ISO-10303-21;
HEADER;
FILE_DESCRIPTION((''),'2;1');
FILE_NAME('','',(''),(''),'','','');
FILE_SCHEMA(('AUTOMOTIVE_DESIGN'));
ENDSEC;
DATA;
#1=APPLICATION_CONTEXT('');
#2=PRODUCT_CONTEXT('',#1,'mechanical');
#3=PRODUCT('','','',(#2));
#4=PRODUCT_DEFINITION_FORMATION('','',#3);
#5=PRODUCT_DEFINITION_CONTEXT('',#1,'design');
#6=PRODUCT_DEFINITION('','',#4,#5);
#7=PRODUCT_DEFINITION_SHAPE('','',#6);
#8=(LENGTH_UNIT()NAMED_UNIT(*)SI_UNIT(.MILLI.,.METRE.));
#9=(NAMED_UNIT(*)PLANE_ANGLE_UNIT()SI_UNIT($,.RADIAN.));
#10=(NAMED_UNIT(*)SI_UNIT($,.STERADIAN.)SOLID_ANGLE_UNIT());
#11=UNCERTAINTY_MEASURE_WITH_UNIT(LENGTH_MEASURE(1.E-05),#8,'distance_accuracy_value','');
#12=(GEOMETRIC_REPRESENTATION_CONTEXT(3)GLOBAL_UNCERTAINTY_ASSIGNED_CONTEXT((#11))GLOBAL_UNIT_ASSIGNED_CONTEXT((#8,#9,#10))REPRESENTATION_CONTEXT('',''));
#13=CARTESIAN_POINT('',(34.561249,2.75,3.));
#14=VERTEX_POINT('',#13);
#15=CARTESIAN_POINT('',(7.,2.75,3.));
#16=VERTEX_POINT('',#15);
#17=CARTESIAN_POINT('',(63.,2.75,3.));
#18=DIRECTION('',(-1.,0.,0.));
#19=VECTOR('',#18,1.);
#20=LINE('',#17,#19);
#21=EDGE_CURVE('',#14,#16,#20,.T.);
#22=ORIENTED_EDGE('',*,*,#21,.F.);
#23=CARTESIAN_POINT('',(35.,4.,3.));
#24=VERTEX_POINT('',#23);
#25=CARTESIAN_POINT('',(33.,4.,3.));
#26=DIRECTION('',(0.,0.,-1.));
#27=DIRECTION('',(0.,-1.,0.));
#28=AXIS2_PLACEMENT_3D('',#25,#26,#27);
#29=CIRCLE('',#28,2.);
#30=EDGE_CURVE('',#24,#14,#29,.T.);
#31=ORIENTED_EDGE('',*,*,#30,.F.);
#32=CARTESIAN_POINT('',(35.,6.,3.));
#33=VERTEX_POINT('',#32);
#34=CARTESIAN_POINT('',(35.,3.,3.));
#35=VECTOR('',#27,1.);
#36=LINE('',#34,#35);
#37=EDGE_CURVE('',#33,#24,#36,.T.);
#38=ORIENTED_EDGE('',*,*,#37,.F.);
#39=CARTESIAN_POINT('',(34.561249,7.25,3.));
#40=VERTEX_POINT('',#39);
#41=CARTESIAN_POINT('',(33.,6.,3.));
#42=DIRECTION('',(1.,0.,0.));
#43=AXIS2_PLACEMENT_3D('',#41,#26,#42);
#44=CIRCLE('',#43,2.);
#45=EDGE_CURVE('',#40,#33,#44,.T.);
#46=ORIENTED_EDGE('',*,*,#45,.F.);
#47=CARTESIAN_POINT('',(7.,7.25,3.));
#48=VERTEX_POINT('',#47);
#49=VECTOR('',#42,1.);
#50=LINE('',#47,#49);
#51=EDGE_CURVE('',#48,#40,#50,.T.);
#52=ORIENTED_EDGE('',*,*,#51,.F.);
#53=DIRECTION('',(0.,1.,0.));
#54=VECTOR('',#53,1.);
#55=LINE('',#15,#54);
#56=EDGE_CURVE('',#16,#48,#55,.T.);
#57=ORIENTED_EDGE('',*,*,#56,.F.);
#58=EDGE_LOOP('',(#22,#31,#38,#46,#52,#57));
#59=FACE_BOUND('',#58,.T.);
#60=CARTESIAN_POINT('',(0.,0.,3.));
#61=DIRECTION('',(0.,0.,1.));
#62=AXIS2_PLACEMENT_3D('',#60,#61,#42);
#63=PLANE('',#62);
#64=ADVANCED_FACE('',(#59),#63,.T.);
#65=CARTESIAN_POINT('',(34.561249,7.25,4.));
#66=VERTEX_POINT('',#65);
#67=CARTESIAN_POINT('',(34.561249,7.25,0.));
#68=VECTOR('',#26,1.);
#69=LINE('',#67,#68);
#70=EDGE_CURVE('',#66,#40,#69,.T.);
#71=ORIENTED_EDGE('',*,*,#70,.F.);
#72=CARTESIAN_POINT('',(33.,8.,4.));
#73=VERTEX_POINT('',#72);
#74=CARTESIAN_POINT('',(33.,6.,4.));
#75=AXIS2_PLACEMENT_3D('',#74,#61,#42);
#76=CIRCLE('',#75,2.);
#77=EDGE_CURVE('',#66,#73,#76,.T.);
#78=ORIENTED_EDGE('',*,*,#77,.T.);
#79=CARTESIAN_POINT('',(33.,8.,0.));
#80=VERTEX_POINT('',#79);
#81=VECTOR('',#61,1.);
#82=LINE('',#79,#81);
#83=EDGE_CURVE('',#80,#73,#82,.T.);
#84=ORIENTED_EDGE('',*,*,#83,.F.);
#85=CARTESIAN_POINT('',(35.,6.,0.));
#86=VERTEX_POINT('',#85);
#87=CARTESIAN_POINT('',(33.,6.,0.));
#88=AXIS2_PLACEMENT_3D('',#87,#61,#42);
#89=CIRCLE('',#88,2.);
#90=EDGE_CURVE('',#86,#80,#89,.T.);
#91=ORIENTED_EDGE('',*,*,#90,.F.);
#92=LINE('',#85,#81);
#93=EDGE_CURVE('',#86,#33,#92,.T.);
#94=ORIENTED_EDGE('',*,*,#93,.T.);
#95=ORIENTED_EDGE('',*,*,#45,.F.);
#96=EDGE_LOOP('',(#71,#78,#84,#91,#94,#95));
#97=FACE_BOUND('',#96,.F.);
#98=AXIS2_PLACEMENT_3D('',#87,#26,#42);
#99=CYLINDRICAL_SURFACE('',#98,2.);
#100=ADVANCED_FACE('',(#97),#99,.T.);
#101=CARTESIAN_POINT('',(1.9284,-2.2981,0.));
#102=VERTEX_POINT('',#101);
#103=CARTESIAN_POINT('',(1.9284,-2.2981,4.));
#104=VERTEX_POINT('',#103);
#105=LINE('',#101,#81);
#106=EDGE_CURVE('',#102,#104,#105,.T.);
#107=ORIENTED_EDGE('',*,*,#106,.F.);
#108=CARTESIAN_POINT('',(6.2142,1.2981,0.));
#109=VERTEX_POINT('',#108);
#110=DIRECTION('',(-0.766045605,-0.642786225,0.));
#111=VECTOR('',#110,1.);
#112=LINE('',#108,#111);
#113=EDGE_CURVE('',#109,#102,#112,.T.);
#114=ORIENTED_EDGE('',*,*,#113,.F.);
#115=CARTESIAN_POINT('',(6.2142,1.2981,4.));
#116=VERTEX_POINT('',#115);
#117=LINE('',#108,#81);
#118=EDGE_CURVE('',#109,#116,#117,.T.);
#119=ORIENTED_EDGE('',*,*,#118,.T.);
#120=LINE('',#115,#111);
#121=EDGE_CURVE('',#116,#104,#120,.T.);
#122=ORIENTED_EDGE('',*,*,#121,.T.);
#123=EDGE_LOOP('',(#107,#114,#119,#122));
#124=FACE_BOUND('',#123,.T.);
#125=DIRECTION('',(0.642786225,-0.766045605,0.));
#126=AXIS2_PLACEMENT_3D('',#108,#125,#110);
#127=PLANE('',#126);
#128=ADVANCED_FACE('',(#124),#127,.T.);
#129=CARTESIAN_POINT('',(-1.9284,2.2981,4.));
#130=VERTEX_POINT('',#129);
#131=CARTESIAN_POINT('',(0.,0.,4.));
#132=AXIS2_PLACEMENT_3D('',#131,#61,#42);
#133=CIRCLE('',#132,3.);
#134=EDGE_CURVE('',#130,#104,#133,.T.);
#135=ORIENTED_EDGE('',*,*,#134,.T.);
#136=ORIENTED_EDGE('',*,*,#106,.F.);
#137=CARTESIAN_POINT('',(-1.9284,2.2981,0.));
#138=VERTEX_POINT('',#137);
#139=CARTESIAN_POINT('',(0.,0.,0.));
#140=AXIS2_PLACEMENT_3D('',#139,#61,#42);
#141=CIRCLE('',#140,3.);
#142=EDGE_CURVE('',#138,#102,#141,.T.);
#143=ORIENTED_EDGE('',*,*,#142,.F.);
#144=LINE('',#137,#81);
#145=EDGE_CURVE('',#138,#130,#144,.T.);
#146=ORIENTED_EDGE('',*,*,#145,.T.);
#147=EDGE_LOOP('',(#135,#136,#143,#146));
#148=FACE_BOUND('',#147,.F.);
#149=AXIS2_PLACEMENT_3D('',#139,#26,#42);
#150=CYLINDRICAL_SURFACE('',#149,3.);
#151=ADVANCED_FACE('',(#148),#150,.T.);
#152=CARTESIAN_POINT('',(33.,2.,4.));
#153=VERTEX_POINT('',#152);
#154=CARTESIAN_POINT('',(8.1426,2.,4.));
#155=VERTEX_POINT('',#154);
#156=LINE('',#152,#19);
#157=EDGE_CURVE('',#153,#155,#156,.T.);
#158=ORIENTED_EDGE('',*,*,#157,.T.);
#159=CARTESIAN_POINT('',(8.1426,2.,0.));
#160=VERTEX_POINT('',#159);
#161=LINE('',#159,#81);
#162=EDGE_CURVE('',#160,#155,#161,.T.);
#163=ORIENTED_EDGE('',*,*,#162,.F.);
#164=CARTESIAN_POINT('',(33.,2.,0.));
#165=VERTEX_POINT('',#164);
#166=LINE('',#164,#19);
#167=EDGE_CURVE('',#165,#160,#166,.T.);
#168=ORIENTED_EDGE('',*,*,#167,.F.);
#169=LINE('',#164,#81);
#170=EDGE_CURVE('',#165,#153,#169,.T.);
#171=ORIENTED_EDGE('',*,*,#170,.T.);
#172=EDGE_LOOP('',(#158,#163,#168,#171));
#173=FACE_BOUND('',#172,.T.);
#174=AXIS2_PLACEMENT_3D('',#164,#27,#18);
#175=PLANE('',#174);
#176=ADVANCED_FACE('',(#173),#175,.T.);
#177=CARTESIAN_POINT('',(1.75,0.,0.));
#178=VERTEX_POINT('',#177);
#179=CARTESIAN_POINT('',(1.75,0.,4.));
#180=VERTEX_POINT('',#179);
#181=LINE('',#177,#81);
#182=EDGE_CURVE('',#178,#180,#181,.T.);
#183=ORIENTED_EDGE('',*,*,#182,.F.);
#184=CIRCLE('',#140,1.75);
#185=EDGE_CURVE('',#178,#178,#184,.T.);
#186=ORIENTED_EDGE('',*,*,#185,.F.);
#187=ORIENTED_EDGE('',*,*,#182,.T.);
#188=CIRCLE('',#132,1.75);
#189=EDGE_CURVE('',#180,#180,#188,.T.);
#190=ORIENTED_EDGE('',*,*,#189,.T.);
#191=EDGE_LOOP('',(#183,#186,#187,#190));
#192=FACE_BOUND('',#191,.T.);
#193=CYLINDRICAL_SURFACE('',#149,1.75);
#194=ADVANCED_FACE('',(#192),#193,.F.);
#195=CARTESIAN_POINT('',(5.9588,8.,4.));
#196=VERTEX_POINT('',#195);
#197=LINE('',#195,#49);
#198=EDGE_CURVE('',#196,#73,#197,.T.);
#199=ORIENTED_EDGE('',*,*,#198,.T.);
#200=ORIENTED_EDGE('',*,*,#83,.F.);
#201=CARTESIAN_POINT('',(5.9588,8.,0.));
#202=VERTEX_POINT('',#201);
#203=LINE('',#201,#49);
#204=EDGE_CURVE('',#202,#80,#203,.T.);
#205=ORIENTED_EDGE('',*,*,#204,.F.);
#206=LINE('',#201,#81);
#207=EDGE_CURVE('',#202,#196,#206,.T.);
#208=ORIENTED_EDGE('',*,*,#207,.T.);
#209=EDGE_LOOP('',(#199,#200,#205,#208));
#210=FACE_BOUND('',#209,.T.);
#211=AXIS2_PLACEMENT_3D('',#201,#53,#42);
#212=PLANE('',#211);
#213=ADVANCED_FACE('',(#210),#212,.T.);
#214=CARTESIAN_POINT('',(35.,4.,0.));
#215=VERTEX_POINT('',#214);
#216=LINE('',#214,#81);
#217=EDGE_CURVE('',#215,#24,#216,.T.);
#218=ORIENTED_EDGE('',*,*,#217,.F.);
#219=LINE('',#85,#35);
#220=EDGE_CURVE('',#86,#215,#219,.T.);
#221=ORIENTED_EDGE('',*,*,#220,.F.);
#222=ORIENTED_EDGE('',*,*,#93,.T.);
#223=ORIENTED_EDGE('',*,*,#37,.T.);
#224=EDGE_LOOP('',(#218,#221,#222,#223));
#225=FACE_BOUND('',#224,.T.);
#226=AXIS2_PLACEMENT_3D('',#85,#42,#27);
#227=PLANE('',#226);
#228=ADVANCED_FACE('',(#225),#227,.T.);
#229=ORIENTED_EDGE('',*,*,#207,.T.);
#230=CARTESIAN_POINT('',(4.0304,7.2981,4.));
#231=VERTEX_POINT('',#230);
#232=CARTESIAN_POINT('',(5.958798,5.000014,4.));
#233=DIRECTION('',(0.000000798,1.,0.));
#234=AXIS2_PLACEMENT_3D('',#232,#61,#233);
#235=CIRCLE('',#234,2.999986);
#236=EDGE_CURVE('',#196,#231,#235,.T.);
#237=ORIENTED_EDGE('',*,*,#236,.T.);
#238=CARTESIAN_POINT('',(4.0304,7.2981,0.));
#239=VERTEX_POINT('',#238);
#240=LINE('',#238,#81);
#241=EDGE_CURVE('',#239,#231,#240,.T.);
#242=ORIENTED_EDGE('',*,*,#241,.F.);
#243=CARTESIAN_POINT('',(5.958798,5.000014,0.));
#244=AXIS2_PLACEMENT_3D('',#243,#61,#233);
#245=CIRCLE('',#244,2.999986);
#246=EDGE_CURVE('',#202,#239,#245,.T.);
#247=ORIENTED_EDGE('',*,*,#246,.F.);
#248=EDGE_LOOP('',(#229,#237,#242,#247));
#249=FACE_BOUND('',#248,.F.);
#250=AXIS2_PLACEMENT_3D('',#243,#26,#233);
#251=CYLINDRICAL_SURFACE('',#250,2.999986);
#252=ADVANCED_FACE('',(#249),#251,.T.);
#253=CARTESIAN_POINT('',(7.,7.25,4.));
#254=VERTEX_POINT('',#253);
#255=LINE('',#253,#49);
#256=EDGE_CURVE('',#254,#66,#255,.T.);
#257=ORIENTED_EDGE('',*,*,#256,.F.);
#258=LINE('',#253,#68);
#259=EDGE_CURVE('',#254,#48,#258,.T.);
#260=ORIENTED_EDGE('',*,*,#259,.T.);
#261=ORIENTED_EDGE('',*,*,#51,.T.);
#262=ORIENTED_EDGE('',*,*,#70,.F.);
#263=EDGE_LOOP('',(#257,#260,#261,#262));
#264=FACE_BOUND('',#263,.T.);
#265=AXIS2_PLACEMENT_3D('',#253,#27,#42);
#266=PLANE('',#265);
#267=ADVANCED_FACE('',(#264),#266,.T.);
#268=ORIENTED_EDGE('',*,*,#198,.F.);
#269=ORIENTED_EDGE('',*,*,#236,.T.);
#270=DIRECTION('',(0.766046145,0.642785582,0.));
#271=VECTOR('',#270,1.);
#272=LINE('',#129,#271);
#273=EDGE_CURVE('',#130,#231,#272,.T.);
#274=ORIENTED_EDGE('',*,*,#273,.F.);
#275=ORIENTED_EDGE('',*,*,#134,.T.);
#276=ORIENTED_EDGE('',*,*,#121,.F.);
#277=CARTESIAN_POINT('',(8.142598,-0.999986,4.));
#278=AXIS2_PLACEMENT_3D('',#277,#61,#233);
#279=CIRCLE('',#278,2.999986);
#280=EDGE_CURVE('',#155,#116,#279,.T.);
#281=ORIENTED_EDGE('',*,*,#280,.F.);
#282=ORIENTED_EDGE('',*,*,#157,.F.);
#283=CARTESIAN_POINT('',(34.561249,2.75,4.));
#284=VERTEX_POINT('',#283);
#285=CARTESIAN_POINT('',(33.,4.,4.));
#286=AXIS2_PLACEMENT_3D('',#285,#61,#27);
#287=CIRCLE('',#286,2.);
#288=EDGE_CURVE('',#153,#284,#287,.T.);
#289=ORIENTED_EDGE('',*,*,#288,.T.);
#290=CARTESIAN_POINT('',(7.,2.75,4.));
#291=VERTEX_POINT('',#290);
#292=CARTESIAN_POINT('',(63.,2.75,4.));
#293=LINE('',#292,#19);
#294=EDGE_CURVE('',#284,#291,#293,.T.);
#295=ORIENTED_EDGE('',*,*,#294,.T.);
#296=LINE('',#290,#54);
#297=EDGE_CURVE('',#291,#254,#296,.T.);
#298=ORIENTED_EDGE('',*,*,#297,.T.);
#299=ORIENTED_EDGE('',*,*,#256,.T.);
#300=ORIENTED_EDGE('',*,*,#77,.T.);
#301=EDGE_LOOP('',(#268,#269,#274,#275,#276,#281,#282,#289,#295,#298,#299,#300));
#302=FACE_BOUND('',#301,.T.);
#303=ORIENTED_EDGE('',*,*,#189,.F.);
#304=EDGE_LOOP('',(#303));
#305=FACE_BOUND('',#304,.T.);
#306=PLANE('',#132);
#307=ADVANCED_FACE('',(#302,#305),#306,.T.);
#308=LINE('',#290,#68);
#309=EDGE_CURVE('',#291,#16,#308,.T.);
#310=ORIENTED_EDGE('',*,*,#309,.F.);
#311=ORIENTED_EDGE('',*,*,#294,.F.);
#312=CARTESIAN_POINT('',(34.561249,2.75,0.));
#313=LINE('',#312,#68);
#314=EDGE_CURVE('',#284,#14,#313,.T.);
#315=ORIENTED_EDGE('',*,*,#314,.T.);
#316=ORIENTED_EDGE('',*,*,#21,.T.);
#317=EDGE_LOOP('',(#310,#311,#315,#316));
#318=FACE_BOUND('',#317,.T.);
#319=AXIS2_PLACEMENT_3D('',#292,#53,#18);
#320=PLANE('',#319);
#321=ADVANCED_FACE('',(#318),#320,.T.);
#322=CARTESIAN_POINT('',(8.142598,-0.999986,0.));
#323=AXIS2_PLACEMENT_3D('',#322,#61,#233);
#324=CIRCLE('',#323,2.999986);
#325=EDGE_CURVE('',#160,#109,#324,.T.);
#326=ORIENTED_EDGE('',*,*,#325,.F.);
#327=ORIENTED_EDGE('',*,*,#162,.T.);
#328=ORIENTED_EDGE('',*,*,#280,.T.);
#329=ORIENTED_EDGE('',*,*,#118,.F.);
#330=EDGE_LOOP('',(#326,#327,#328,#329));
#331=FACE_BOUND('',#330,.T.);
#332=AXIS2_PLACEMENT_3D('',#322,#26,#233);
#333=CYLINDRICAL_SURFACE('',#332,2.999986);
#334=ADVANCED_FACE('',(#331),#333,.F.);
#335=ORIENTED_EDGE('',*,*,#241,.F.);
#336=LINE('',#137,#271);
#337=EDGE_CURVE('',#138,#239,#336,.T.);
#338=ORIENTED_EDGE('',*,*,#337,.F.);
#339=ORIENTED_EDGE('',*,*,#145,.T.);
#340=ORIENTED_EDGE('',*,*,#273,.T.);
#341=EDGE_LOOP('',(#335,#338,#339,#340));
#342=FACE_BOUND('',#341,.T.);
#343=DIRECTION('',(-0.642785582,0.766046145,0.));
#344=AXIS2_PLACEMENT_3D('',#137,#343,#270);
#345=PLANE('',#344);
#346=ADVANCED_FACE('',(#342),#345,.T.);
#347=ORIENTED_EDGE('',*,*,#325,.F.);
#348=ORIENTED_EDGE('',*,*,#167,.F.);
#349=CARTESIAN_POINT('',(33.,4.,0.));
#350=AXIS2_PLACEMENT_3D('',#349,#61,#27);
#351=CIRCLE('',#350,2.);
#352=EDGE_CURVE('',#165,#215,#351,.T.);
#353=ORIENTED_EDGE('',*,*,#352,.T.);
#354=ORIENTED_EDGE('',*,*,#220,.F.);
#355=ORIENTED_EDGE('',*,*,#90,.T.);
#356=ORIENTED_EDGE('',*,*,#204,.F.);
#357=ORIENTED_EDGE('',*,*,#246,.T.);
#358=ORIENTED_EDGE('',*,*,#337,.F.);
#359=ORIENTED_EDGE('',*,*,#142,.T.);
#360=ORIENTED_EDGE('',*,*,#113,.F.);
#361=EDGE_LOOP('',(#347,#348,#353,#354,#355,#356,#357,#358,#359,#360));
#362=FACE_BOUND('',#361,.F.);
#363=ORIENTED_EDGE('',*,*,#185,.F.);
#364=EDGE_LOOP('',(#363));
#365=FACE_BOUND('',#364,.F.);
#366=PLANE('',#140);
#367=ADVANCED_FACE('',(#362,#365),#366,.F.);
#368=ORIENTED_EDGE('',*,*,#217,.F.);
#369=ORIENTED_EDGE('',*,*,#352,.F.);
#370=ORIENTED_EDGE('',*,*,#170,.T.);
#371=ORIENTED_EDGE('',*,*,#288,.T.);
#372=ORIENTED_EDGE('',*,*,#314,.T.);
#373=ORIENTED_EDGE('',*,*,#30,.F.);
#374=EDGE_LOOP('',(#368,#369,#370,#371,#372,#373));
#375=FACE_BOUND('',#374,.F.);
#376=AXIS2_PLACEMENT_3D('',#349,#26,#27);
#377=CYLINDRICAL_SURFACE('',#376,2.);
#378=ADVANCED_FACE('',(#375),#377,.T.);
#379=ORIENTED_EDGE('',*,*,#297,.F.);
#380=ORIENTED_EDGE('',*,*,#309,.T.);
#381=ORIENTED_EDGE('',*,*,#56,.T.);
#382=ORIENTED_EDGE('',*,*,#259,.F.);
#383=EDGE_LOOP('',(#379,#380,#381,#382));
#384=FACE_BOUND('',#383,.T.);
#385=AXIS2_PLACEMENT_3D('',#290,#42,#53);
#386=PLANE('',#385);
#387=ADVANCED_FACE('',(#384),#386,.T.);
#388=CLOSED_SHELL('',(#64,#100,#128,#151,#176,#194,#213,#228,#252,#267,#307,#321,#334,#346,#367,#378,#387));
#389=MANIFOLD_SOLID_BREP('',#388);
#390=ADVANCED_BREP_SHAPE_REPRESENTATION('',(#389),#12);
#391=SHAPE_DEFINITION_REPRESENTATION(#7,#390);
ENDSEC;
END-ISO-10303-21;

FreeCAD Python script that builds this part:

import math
import FreeCAD as App
import Part
import Sketcher

V = App.Vector
Q = App.Units.Quantity


def add_polygon(sketch, points):
    """Adds a closed chain of lines whose ends are joined by coincident constraints."""
    first, n = sketch.GeometryCount, len(points)
    for a, b in zip(points, points[1:] + points[:1]):
        sketch.addGeometry(Part.LineSegment(App.Vector(*a, 0), App.Vector(*b, 0)), False)
    for i in range(n):
        sketch.addConstraint(Sketcher.Constraint("Coincident", first + i, 2, first + (i + 1) % n, 1))

doc = App.newDocument("Part")
body = doc.addObject("PartDesign::Body", "Body")

# Sketch on XY plane
sketch1 = body.newObject("Sketcher::SketchObject", "Sketch")
sketch1.AttachmentSupport = (doc.getObject("XY_Plane"), [""])
sketch1.MapMode = "FlatFace"
sketch1.addGeometry(Part.ArcOfCircle(Part.Circle(V(0, 0, 0), V(0, 0, 1), 3), math.radians(130), math.radians(310)), False)
sketch1.addGeometry(Part.LineSegment(V(1.9, -2.3, 0), V(6.2, 1.3, 0)), False)
sketch1.addGeometry(Part.ArcOfCircle(Part.Circle(V(8.1, -1, 0), V(0, 0, 1), 3), math.radians(90), math.radians(130)), False)
sketch1.addGeometry(Part.LineSegment(V(8.1, 2, 0), V(33, 2, 0)), False)
sketch1.addGeometry(Part.ArcOfCircle(Part.Circle(V(33, 4, 0), V(0, 0, 1), 2), math.radians(-90), math.radians(0)), False)
sketch1.addGeometry(Part.LineSegment(V(35, 4, 0), V(35, 6, 0)), False)
sketch1.addGeometry(Part.ArcOfCircle(Part.Circle(V(33, 6, 0), V(0, 0, 1), 2), math.radians(0), math.radians(90)), False)
sketch1.addGeometry(Part.LineSegment(V(33, 8, 0), V(6, 8, 0)), False)
sketch1.addGeometry(Part.ArcOfCircle(Part.Circle(V(6, 5, 0), V(0, 0, 1), 3), math.radians(90), math.radians(130)), False)
sketch1.addGeometry(Part.LineSegment(V(4, 7.3, 0), V(-1.9, 2.3, 0)), False)
sketch1.addGeometry(Part.Circle(V(0, 0, 0), V(0, 0, 1), 1.8), False)
sketch1.addConstraint(Sketcher.Constraint("Tangent", 0, 2, 1, 1))
sketch1.addConstraint(Sketcher.Constraint("Tangent", 1, 2, 2, 2))
sketch1.addConstraint(Sketcher.Constraint("Tangent", 2, 1, 3, 1))
sketch1.addConstraint(Sketcher.Constraint("Tangent", 3, 2, 4, 1))
sketch1.addConstraint(Sketcher.Constraint("Tangent", 4, 2, 5, 1))
sketch1.addConstraint(Sketcher.Constraint("Tangent", 5, 2, 6, 1))
sketch1.addConstraint(Sketcher.Constraint("Tangent", 6, 2, 7, 1))
sketch1.addConstraint(Sketcher.Constraint("Tangent", 7, 2, 8, 1))
sketch1.addConstraint(Sketcher.Constraint("Tangent", 8, 2, 9, 1))
sketch1.addConstraint(Sketcher.Constraint("Tangent", 9, 2, 0, 1))
sketch1.addConstraint(Sketcher.Constraint("Horizontal", 3))
sketch1.addConstraint(Sketcher.Constraint("Vertical", 5))
sketch1.addConstraint(Sketcher.Constraint("Horizontal", 7))
sketch1.addConstraint(Sketcher.Constraint("Coincident", 0, 3, -1, 1))
sketch1.addConstraint(Sketcher.Constraint("Coincident", 10, 3, -1, 1))
sketch1.addConstraint(Sketcher.Constraint("Equal", 0, 2))
sketch1.addConstraint(Sketcher.Constraint("Equal", 4, 6))
sketch1.addConstraint(Sketcher.Constraint("Equal", 2, 8))
sketch1.addConstraint(Sketcher.Constraint("Parallel", 1, 9))
sketch1.addConstraint(Sketcher.Constraint("Radius", 0, Q("3 mm")))
sketch1.addConstraint(Sketcher.Constraint("Radius", 4, Q("2 mm")))
sketch1.addConstraint(Sketcher.Constraint("Diameter", 10, Q("3.5 mm")))
sketch1.addConstraint(Sketcher.Constraint("DistanceY", 5, 1, 5, 2, Q("2 mm")))
sketch1.addConstraint(Sketcher.Constraint("Angle", 9, Q("-140.0002 deg")))
sketch1.addConstraint(Sketcher.Constraint("DistanceY", -1, 1, 6, 3, Q("6 mm")))
sketch1.addConstraint(Sketcher.Constraint("DistanceX", -1, 1, 4, 2, Q("35 mm")))
pad1 = body.newObject("PartDesign::Pad", "Pad")
pad1.Profile = sketch1
pad1.Length = 4

# Sketch on XY plane
sketch2 = body.newObject("Sketcher::SketchObject", "Sketch001")
sketch2.AttachmentSupport = (doc.getObject("XY_Plane"), [""])
sketch2.MapMode = "FlatFace"
sketch2.AttachmentOffset = App.Placement(V(0, 0, 4), App.Rotation())
add_polygon(sketch2, [(7, 2.8), (63, 2.8), (63, 7.2), (7, 7.2)])  # lines 0-3
sketch2.addConstraint(Sketcher.Constraint("Horizontal", 0))
sketch2.addConstraint(Sketcher.Constraint("Vertical", 1))
sketch2.addConstraint(Sketcher.Constraint("Horizontal", 2))
sketch2.addConstraint(Sketcher.Constraint("Vertical", 3))
sketch2.addConstraint(Sketcher.Constraint("DistanceY", 1, 1, 1, 2, Q("4.5 mm")))
sketch2.addConstraint(Sketcher.Constraint("DistanceX", 0, 1, 0, 2, Q("56 mm")))
sketch2.addConstraint(Sketcher.Constraint("DistanceX", -1, 1, 0, 2, Q("63 mm")))
sketch2.addConstraint(Sketcher.Constraint("DistanceY", -1, 1, 0, 2, Q("2.75 mm")))
pocket1 = body.newObject("PartDesign::Pocket", "Pocket")
pocket1.Profile = sketch2
pocket1.Length = 1

doc.recompute()
